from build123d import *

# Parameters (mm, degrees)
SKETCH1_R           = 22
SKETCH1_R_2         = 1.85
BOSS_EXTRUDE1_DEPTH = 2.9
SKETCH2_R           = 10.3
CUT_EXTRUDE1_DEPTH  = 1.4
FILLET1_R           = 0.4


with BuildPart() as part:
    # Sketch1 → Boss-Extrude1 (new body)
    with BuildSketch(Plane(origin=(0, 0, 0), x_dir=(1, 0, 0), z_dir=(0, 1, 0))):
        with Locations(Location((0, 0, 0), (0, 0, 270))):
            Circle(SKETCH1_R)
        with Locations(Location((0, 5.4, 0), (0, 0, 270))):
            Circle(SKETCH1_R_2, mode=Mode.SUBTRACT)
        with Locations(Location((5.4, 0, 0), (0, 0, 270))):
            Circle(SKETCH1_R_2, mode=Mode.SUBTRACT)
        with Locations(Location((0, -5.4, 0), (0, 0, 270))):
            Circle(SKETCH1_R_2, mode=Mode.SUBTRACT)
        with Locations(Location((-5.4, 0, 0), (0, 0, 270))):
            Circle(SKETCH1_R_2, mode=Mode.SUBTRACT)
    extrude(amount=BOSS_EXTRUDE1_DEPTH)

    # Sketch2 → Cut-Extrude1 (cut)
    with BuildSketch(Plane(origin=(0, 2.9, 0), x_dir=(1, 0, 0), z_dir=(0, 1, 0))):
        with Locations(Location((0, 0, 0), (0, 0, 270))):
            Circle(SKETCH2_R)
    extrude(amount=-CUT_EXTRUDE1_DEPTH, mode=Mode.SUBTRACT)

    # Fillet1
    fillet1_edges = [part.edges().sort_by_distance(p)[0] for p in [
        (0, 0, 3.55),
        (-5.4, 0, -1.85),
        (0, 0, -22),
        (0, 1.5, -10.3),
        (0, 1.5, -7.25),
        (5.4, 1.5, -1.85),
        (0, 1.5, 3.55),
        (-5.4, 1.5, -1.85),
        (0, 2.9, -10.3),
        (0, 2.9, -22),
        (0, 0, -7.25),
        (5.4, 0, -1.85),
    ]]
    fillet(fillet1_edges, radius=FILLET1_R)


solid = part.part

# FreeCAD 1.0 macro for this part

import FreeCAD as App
import Part
import Sketcher


def edges_at(feature, points):
    """Names of the edges that pass closest to the given points."""
    edges = feature.Shape.Edges
    near = lambda p: min(range(len(edges)), key=lambda i: edges[i].distToShape(Part.Vertex(*p))[0])
    return sorted({f"Edge{near(p) + 1}" for p in points})

doc = App.newDocument("Part")
body = doc.addObject("PartDesign::Body", "Body")

# Sketch on XZ plane
sketch1 = body.newObject("Sketcher::SketchObject", "Sketch")
sketch1.AttachmentSupport = (doc.getObject("XZ_Plane"), [""])
sketch1.MapMode = "FlatFace"
sketch1.addGeometry([
    Part.Circle(App.Vector(0, 0, 0), App.Vector(0, 0, 1), 22),  # 0
    Part.Circle(App.Vector(0, -5.4, 0), App.Vector(0, 0, 1), 1.85),  # 1
    Part.Circle(App.Vector(-5.4, 0, 0), App.Vector(0, 0, 1), 1.85),  # 2
    Part.Circle(App.Vector(5.4, 0, 0), App.Vector(0, 0, 1), 1.85),  # 3
    Part.Circle(App.Vector(0, 5.4, 0), App.Vector(0, 0, 1), 1.85),  # 4
], False)
sketch1.addConstraint([
    Sketcher.Constraint("Coincident", 0, 3, -1, 1),
    Sketcher.Constraint("Equal", 1, 2),
    Sketcher.Constraint("Equal", 2, 3),
    Sketcher.Constraint("Equal", 3, 4),
    Sketcher.Constraint("Symmetric", 2, 3, 3, 3, -1, 1),
    Sketcher.Constraint("Symmetric", 1, 3, 4, 3, -1, 1),
    Sketcher.Constraint("PointOnObject", 1, 3, -2),
    Sketcher.Constraint("PointOnObject", 2, 3, -1),
    Sketcher.Constraint("Diameter", 0, 44.0),
    Sketcher.Constraint("Diameter", 1, 3.7),
    Sketcher.Constraint("DistanceY", 1, 3, -1, 1, 5.4),
    Sketcher.Constraint("DistanceX", 2, 3, -1, 1, 5.4),
])
pad1 = body.newObject("PartDesign::Pad", "Pad")
pad1.Profile = sketch1
pad1.Length = 2.9
pad1.Reversed = True

# Sketch on XZ plane
sketch2 = body.newObject("Sketcher::SketchObject", "Sketch001")
sketch2.AttachmentSupport = (doc.getObject("XZ_Plane"), [""])
sketch2.MapMode = "FlatFace"
sketch2.AttachmentOffset = App.Placement(App.Vector(0, 0, -2.9), App.Rotation())
sketch2.addGeometry(Part.Circle(App.Vector(0, 0, 0), App.Vector(0, 0, 1), 10.3), False)
sketch2.addConstraint([
    Sketcher.Constraint("Coincident", 0, 3, -1, 1),
    Sketcher.Constraint("Diameter", 0, 20.6),
])
pocket1 = body.newObject("PartDesign::Pocket", "Pocket")
pocket1.Profile = sketch2
pocket1.Length = 1.4
pocket1.Reversed = True
doc.recompute()

fillet = body.newObject("PartDesign::Fillet", "Fillet")
fillet.Base = (pocket1, edges_at(pocket1, [
    (0, 0, 3.55),
    (-5.4, 0, -1.85),
    (0, 0, -22),
    (0, 1.5, -10.3),
    (0, 1.5, -7.25),
    (5.4, 1.5, -1.85),
    (0, 1.5, 3.55),
    (-5.4, 1.5, -1.85),
    (0, 2.9, -10.3),
    (0, 2.9, -22),
    (0, 0, -7.25),
    (5.4, 0, -1.85),
]))
fillet.Radius = 0.4

doc.recompute()
